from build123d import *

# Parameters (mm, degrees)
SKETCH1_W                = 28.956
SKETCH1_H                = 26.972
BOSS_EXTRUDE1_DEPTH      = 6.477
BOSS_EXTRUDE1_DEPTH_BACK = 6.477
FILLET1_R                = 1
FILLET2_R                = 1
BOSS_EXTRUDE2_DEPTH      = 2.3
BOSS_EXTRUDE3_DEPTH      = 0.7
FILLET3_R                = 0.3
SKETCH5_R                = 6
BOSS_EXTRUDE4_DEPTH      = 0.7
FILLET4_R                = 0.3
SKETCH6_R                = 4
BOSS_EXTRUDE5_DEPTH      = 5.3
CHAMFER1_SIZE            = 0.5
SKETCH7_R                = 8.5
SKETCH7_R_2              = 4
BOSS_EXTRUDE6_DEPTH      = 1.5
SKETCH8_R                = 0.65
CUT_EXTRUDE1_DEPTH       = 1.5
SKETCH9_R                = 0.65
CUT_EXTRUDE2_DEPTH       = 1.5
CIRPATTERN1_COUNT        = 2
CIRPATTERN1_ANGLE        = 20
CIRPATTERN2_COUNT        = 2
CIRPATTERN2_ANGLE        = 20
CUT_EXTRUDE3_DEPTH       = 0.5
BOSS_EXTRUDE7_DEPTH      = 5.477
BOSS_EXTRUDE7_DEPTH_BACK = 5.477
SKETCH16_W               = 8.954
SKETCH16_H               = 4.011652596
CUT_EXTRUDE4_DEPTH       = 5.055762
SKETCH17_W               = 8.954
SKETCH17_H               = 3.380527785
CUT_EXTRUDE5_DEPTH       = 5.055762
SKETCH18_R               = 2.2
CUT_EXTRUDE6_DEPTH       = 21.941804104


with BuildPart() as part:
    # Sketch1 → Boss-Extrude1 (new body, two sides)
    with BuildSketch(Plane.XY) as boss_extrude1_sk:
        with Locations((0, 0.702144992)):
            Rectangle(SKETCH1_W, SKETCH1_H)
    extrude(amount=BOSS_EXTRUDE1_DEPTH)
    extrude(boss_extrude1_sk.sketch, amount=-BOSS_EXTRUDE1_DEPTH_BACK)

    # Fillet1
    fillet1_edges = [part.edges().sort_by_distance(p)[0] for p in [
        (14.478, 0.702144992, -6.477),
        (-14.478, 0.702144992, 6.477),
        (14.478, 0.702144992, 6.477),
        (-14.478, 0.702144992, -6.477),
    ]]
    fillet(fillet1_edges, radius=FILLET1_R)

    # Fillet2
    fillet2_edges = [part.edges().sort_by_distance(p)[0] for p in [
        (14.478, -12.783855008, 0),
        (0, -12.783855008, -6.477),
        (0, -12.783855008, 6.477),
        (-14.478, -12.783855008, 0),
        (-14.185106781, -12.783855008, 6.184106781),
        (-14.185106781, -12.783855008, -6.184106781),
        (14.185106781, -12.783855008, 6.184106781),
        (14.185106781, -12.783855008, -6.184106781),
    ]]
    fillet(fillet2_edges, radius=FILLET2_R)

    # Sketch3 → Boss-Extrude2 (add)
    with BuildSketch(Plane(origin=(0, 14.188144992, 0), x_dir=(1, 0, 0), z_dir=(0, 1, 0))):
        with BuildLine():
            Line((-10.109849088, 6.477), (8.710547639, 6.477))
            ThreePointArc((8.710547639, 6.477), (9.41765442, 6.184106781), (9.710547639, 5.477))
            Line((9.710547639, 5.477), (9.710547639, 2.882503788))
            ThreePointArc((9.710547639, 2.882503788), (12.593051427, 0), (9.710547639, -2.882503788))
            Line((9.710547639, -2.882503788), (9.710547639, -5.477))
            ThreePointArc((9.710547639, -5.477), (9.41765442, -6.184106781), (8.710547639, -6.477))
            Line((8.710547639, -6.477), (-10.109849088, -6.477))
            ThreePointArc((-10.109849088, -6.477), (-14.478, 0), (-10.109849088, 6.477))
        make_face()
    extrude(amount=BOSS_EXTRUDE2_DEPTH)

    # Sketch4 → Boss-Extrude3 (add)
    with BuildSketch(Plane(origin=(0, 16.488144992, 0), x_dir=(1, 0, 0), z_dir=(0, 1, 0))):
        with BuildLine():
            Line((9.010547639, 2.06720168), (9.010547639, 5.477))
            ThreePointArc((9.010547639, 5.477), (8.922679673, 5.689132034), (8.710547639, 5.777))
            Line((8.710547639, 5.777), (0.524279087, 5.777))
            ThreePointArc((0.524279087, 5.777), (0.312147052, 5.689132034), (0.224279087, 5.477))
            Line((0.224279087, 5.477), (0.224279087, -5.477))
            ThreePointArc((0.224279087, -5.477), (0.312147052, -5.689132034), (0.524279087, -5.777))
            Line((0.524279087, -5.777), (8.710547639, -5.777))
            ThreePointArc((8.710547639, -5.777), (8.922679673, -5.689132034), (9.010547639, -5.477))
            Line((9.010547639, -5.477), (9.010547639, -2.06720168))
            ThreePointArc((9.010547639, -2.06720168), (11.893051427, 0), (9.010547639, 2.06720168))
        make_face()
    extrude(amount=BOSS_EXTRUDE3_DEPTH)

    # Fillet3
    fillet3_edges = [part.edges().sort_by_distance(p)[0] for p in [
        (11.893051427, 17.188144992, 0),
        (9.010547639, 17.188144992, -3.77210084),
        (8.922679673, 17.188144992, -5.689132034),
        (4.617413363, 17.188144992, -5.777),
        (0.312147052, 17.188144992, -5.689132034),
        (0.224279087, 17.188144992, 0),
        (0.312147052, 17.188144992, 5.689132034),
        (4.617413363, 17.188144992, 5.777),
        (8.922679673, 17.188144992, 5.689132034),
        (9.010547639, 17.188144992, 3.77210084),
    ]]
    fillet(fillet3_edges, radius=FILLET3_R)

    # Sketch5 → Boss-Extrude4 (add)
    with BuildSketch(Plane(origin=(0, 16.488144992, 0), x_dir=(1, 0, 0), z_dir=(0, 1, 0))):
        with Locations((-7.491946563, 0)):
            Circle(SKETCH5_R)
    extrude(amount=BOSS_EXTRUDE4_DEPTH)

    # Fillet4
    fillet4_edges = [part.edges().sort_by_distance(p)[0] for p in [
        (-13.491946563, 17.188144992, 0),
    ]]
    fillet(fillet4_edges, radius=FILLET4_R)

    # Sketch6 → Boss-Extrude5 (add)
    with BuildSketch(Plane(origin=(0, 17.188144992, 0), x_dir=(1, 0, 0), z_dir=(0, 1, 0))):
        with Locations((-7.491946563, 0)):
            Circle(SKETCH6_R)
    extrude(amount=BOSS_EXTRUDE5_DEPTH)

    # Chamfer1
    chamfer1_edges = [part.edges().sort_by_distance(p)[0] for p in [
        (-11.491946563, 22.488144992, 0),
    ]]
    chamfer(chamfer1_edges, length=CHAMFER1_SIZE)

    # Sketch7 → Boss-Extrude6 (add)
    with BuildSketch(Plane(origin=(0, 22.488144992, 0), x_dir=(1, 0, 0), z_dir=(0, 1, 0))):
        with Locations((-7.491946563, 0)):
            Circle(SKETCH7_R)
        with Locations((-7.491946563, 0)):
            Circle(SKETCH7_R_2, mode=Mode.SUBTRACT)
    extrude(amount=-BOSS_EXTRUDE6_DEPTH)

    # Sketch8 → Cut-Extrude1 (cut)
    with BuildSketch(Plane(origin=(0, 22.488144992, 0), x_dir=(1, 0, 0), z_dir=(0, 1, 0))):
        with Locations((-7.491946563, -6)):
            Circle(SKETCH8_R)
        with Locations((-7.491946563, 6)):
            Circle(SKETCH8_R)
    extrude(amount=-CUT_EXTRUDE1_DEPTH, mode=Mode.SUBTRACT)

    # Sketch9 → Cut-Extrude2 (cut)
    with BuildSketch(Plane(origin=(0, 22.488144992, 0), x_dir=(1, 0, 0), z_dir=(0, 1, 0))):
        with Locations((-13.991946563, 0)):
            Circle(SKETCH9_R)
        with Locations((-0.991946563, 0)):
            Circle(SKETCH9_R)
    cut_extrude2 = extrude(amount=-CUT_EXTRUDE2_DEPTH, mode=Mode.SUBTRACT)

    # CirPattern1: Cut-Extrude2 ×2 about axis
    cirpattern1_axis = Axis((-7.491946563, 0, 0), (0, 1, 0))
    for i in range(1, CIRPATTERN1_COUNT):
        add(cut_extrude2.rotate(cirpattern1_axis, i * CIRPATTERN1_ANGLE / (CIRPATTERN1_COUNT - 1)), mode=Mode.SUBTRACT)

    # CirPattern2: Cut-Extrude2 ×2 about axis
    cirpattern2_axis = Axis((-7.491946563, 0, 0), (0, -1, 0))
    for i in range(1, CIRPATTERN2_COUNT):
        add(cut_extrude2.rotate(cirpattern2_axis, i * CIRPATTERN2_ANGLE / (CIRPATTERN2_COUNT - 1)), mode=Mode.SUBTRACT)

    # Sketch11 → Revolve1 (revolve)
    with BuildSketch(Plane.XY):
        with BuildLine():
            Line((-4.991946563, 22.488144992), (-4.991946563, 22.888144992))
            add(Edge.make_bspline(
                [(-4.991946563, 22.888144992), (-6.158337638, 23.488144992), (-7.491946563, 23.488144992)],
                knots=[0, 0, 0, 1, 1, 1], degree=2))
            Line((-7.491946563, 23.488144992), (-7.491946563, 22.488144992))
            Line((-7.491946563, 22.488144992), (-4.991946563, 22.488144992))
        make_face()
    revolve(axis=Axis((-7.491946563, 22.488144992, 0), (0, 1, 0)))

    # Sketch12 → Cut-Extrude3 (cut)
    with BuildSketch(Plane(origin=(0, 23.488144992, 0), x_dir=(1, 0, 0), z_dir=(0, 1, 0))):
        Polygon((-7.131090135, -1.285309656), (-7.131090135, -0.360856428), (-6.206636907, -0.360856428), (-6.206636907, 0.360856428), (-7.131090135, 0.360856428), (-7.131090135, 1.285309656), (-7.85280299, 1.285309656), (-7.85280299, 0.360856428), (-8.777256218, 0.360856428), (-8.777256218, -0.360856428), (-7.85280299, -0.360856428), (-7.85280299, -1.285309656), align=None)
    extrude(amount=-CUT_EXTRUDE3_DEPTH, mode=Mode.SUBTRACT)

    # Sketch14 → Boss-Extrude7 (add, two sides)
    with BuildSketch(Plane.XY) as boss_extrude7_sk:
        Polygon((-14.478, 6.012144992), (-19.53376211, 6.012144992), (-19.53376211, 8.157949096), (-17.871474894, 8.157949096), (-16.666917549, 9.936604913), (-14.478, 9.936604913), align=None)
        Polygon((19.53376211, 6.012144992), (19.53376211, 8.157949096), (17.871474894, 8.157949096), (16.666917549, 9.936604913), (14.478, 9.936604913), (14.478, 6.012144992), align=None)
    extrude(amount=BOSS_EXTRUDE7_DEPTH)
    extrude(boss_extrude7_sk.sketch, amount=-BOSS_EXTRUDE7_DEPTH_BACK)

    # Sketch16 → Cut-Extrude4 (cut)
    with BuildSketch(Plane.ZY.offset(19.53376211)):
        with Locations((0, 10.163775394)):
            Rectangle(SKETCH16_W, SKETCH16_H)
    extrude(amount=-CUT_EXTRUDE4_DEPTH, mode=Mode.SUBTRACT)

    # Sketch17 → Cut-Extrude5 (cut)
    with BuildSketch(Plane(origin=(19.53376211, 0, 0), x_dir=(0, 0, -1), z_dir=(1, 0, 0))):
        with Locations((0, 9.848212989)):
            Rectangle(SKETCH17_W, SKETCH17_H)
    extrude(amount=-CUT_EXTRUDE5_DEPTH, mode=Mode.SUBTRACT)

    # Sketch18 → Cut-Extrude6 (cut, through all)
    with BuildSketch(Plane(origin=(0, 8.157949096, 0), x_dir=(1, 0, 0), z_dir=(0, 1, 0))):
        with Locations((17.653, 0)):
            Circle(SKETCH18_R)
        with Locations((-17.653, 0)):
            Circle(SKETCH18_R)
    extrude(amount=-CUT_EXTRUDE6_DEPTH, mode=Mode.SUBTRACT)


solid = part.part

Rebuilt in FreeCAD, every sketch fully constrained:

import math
import FreeCAD as App
import Part
import Sketcher
from FreeCAD import Vector
Q = App.Units.Quantity


def edges_at(feature, points):
    """Names of the edges that pass closest to the given points."""
    edges = feature.Shape.Edges
    near = lambda p: min(range(len(edges)), key=lambda i: edges[i].distToShape(Part.Vertex(*p))[0])
    return sorted({f"Edge{near(p) + 1}" for p in points})

doc = App.newDocument("Part")
body = doc.addObject("PartDesign::Body", "Body")

sketch1 = body.newObject("Sketcher::SketchObject", "Sketch")
sketch1.AttachmentSupport = (doc.getObject("XY_Plane"), [""])
sketch1.MapMode = "FlatFace"
sketch1.addGeometry(Part.LineSegment(Vector(-14, 14, 0), Vector(-14, -13, 0)), False)
sketch1.addGeometry(Part.LineSegment(Vector(-14, -13, 0), Vector(14, -13, 0)), False)
sketch1.addGeometry(Part.LineSegment(Vector(14, -13, 0), Vector(14, 14, 0)), False)
sketch1.addGeometry(Part.LineSegment(Vector(14, 14, 0), Vector(-14, 14, 0)), False)
sketch1.addConstraint(Sketcher.Constraint("Coincident", 0, 2, 1, 1))
sketch1.addConstraint(Sketcher.Constraint("Coincident", 1, 2, 2, 1))
sketch1.addConstraint(Sketcher.Constraint("Coincident", 2, 2, 3, 1))
sketch1.addConstraint(Sketcher.Constraint("Coincident", 3, 2, 0, 1))
sketch1.addConstraint(Sketcher.Constraint("Vertical", 0))
sketch1.addConstraint(Sketcher.Constraint("Horizontal", 1))
sketch1.addConstraint(Sketcher.Constraint("Vertical", 2))
sketch1.addConstraint(Sketcher.Constraint("Horizontal", 3))
sketch1.addConstraint(Sketcher.Constraint("DistanceX", 1, 1, 1, 2, Q("28.956 mm")))
sketch1.addConstraint(Sketcher.Constraint("DistanceY", 0, 2, 0, 1, Q("26.972 mm")))
sketch1.addConstraint(Sketcher.Constraint("DistanceX", 0, 2, -1, 1, Q("14.478 mm")))
sketch1.addConstraint(Sketcher.Constraint("DistanceY", 0, 2, -1, 1, Q("12.783855 mm")))
pad1 = body.newObject("PartDesign::Pad", "Pad")
pad1.Profile = sketch1
pad1.Type = "TwoLengths"
pad1.Length = 6.477
pad1.Length2 = 6.477
doc.recompute()

fillet = body.newObject("PartDesign::Fillet", "Fillet")
fillet.Base = (pad1, edges_at(pad1, [
    (14.478, 0.702, -6.477),
    (-14.478, 0.702, 6.477),
    (14.478, 0.702, 6.477),
    (-14.478, 0.702, -6.477),
]))
fillet.Radius = 1
doc.recompute()

fillet2 = body.newObject("PartDesign::Fillet", "Fillet001")
fillet2.Base = (fillet, edges_at(fillet, [
    (14.478, -12.784, 0),
    (0, -12.784, -6.477),
    (0, -12.784, 6.477),
    (-14.478, -12.784, 0),
    (-14.185, -12.784, 6.184),
    (-14.185, -12.784, -6.184),
    (14.185, -12.784, 6.184),
    (14.185, -12.784, -6.184),
]))
fillet2.Radius = 1

sketch2 = body.newObject("Sketcher::SketchObject", "Sketch001")
sketch2.AttachmentSupport = (doc.getObject("XZ_Plane"), [""])
sketch2.MapMode = "FlatFace"
sketch2.AttachmentOffset = App.Placement(Vector(0, 0, -14.188145), App.Rotation())
sketch2.addGeometry(Part.LineSegment(Vector(8.7, -6.5, 0), Vector(-10.1, -6.5, 0)), False)
sketch2.addGeometry(Part.ArcOfCircle(Part.Circle(Vector(-7.5, 0, 0), Vector(0, 0, 1), 7), math.radians(112), math.radians(248)), False)
sketch2.addGeometry(Part.LineSegment(Vector(-10.1, 6.5, 0), Vector(8.7, 6.5, 0)), False)
sketch2.addGeometry(Part.ArcOfCircle(Part.Circle(Vector(8.7, 5.5, 0), Vector(0, 0, 1), 1), math.radians(0), math.radians(90)), False)
sketch2.addGeometry(Part.LineSegment(Vector(9.7, 5.5, 0), Vector(9.7, 2.9, 0)), False)
sketch2.addGeometry(Part.ArcOfCircle(Part.Circle(Vector(9.7, 0, 0), Vector(0, 0, 1), 2.9), math.radians(-90), math.radians(90)), False)
sketch2.addGeometry(Part.LineSegment(Vector(9.7, -2.9, 0), Vector(9.7, -5.5, 0)), False)
sketch2.addGeometry(Part.ArcOfCircle(Part.Circle(Vector(8.7, -5.5, 0), Vector(0, 0, 1), 1), math.radians(-90), math.radians(0)), False)
sketch2.addConstraint(Sketcher.Constraint("Coincident", 0, 2, 1, 2))
sketch2.addConstraint(Sketcher.Constraint("Coincident", 1, 1, 2, 1))
sketch2.addConstraint(Sketcher.Constraint("Tangent", 2, 2, 3, 2))
sketch2.addConstraint(Sketcher.Constraint("Tangent", 3, 1, 4, 1))
sketch2.addConstraint(Sketcher.Constraint("Coincident", 4, 2, 5, 2))
sketch2.addConstraint(Sketcher.Constraint("Coincident", 5, 1, 6, 1))
sketch2.addConstraint(Sketcher.Constraint("Tangent", 6, 2, 7, 2))
sketch2.addConstraint(Sketcher.Constraint("Tangent", 7, 1, 0, 1))
sketch2.addConstraint(Sketcher.Constraint("Horizontal", 0))
sketch2.addConstraint(Sketcher.Constraint("Horizontal", 2))
sketch2.addConstraint(Sketcher.Constraint("Vertical", 4))
sketch2.addConstraint(Sketcher.Constraint("Vertical", 6))
sketch2.addConstraint(Sketcher.Constraint("Equal", 3, 7))
sketch2.addConstraint(Sketcher.Constraint("Symmetric", 3, 3, 7, 3, -1))
sketch2.addConstraint(Sketcher.Constraint("PointOnObject", 1, 3, -1))
sketch2.addConstraint(Sketcher.Constraint("PointOnObject", 5, 3, -1))
sketch2.addConstraint(Sketcher.Constraint("Vertical", 5, 3, 3, 1))
sketch2.addConstraint(Sketcher.Constraint("Radius", 3, Q("1 mm")))
sketch2.addConstraint(Sketcher.Constraint("DistanceY", -1, 1, 3, 3, Q("5.477 mm")))
sketch2.addConstraint(Sketcher.Constraint("Radius", 1, Q("6.986053 mm")))
sketch2.addConstraint(Sketcher.Constraint("Radius", 5, Q("2.882504 mm")))
sketch2.addConstraint(Sketcher.Constraint("DistanceX", 0, 2, 0, 1, Q("18.820397 mm")))
sketch2.addConstraint(Sketcher.Constraint("DistanceX", 0, 2, -1, 1, Q("10.109849 mm")))
pad2 = body.newObject("PartDesign::Pad", "Pad001")
pad2.Profile = sketch2
pad2.Length = 2.3
pad2.Reversed = True

sketch3 = body.newObject("Sketcher::SketchObject", "Sketch002")
sketch3.AttachmentSupport = (doc.getObject("XZ_Plane"), [""])
sketch3.MapMode = "FlatFace"
sketch3.AttachmentOffset = App.Placement(Vector(0, 0, -16.488145), App.Rotation())
sketch3.addGeometry(Part.LineSegment(Vector(9.01, -2.07, 0), Vector(9.01, -5.48, 0)), False)
sketch3.addGeometry(Part.ArcOfCircle(Part.Circle(Vector(8.71, -5.48, 0), Vector(0, 0, 1), 0.3), math.radians(-90), math.radians(0)), False)
sketch3.addGeometry(Part.LineSegment(Vector(8.71, -5.78, 0), Vector(0.52, -5.78, 0)), False)
sketch3.addGeometry(Part.ArcOfCircle(Part.Circle(Vector(0.52, -5.48, 0), Vector(0, 0, 1), 0.3), math.radians(180), math.radians(270)), False)
sketch3.addGeometry(Part.LineSegment(Vector(0.22, -5.48, 0), Vector(0.22, 5.48, 0)), False)
sketch3.addGeometry(Part.ArcOfCircle(Part.Circle(Vector(0.52, 5.48, 0), Vector(0, 0, 1), 0.3), math.radians(90), math.radians(180)), False)
sketch3.addGeometry(Part.LineSegment(Vector(0.52, 5.78, 0), Vector(8.71, 5.78, 0)), False)
sketch3.addGeometry(Part.ArcOfCircle(Part.Circle(Vector(8.71, 5.48, 0), Vector(0, 0, 1), 0.3), math.radians(0), math.radians(90)), False)
sketch3.addGeometry(Part.LineSegment(Vector(9.01, 5.48, 0), Vector(9.01, 2.07, 0)), False)
sketch3.addGeometry(Part.ArcOfCircle(Part.Circle(Vector(9.71, 0, 0), Vector(0, 0, 1), 2.18), math.radians(-109), math.radians(109)), False)
sketch3.addConstraint(Sketcher.Constraint("Tangent", 0, 2, 1, 2))
sketch3.addConstraint(Sketcher.Constraint("Tangent", 1, 1, 2, 1))
sketch3.addConstraint(Sketcher.Constraint("Tangent", 2, 2, 3, 2))
sketch3.addConstraint(Sketcher.Constraint("Tangent", 3, 1, 4, 1))
sketch3.addConstraint(Sketcher.Constraint("Tangent", 4, 2, 5, 2))
sketch3.addConstraint(Sketcher.Constraint("Tangent", 5, 1, 6, 1))
sketch3.addConstraint(Sketcher.Constraint("Tangent", 6, 2, 7, 2))
sketch3.addConstraint(Sketcher.Constraint("Tangent", 7, 1, 8, 1))
sketch3.addConstraint(Sketcher.Constraint("Coincident", 8, 2, 9, 2))
sketch3.addConstraint(Sketcher.Constraint("Coincident", 9, 1, 0, 1))
sketch3.addConstraint(Sketcher.Constraint("Vertical", 0))
sketch3.addConstraint(Sketcher.Constraint("Horizontal", 2))
sketch3.addConstraint(Sketcher.Constraint("Vertical", 4))
sketch3.addConstraint(Sketcher.Constraint("Horizontal", 6))
sketch3.addConstraint(Sketcher.Constraint("Vertical", 8))
sketch3.addConstraint(Sketcher.Constraint("Equal", 1, 3))
sketch3.addConstraint(Sketcher.Constraint("Equal", 3, 5))
sketch3.addConstraint(Sketcher.Constraint("Equal", 5, 7))
sketch3.addConstraint(Sketcher.Constraint("Symmetric", 1, 3, 7, 3, -1))
sketch3.addConstraint(Sketcher.Constraint("PointOnObject", 9, 3, -1))
sketch3.addConstraint(Sketcher.Constraint("Radius", 1, Q("0.3 mm")))
sketch3.addConstraint(Sketcher.Constraint("DistanceX", 1, 3, 9, 3, Q("1 mm")))
sketch3.addConstraint(Sketcher.Constraint("DistanceY", 4, 1, 4, 2, Q("10.954 mm")))
sketch3.addConstraint(Sketcher.Constraint("DistanceY", 0, 2, 0, 1, Q("3.409798 mm")))
sketch3.addConstraint(Sketcher.Constraint("DistanceX", 2, 2, 2, 1, Q("8.186269 mm")))
sketch3.addConstraint(Sketcher.Constraint("DistanceX", -1, 1, 3, 3, Q("0.524279 mm")))
pad3 = body.newObject("PartDesign::Pad", "Pad002")
pad3.Profile = sketch3
pad3.Length = 0.7
pad3.Reversed = True
doc.recompute()

fillet3 = body.newObject("PartDesign::Fillet", "Fillet002")
fillet3.Base = (pad3, edges_at(pad3, [
    (11.893, 17.188, 0),
    (9.011, 17.188, -3.772),
    (8.923, 17.188, -5.689),
    (4.617, 17.188, -5.777),
    (0.312, 17.188, -5.689),
    (0.224, 17.188, 0),
    (0.312, 17.188, 5.689),
    (4.617, 17.188, 5.777),
    (8.923, 17.188, 5.689),
    (9.011, 17.188, 3.772),
]))
fillet3.Radius = 0.3

sketch4 = body.newObject("Sketcher::SketchObject", "Sketch003")
sketch4.AttachmentSupport = (doc.getObject("XZ_Plane"), [""])
sketch4.MapMode = "FlatFace"
sketch4.AttachmentOffset = App.Placement(Vector(0, 0, -16.488145), App.Rotation())
sketch4.addGeometry(Part.Circle(Vector(-7, 0, 0), Vector(0, 0, 1), 6), False)
sketch4.addConstraint(Sketcher.Constraint("PointOnObject", 0, 3, -1))
sketch4.addConstraint(Sketcher.Constraint("Diameter", 0, Q("12 mm")))
sketch4.addConstraint(Sketcher.Constraint("DistanceX", 0, 3, -1, 1, Q("7.491947 mm")))
pad4 = body.newObject("PartDesign::Pad", "Pad003")
pad4.Profile = sketch4
pad4.Length = 0.7
pad4.Reversed = True
doc.recompute()

fillet4 = body.newObject("PartDesign::Fillet", "Fillet003")
fillet4.Base = (pad4, edges_at(pad4, [(-13.492, 17.188, 0)]))
fillet4.Radius = 0.3

sketch5 = body.newObject("Sketcher::SketchObject", "Sketch004")
sketch5.AttachmentSupport = (doc.getObject("XZ_Plane"), [""])
sketch5.MapMode = "FlatFace"
sketch5.AttachmentOffset = App.Placement(Vector(0, 0, -17.188145), App.Rotation())
sketch5.addGeometry(Part.Circle(Vector(-7.5, 0, 0), Vector(0, 0, 1), 4), False)
sketch5.addConstraint(Sketcher.Constraint("PointOnObject", 0, 3, -1))
sketch5.addConstraint(Sketcher.Constraint("Diameter", 0, Q("8 mm")))
sketch5.addConstraint(Sketcher.Constraint("DistanceX", 0, 3, -1, 1, Q("7.491947 mm")))
pad5 = body.newObject("PartDesign::Pad", "Pad004")
pad5.Profile = sketch5
pad5.Length = 5.3
pad5.Reversed = True
doc.recompute()

chamfer = body.newObject("PartDesign::Chamfer", "Chamfer")
chamfer.Base = (pad5, edges_at(pad5, [(-11.492, 22.488, 0)]))
chamfer.Size = 0.5

sketch6 = body.newObject("Sketcher::SketchObject", "Sketch005")
sketch6.AttachmentSupport = (doc.getObject("XZ_Plane"), [""])
sketch6.MapMode = "FlatFace"
sketch6.AttachmentOffset = App.Placement(Vector(0, 0, -22.488145), App.Rotation())
sketch6.addGeometry(Part.Circle(Vector(-7.5, 0, 0), Vector(0, 0, 1), 8.5), False)
sketch6.addGeometry(Part.Circle(Vector(-7.5, 0, 0), Vector(0, 0, 1), 4), False)
sketch6.addConstraint(Sketcher.Constraint("Coincident", 1, 3, 0, 3))
sketch6.addConstraint(Sketcher.Constraint("PointOnObject", 0, 3, -1))
sketch6.addConstraint(Sketcher.Constraint("Diameter", 0, Q("17 mm")))
sketch6.addConstraint(Sketcher.Constraint("Diameter", 1, Q("8 mm")))
sketch6.addConstraint(Sketcher.Constraint("DistanceX", 0, 3, -1, 1, Q("7.491947 mm")))
pad6 = body.newObject("PartDesign::Pad", "Pad005")
pad6.Profile = sketch6
pad6.Length = 1.5

sketch7 = body.newObject("Sketcher::SketchObject", "Sketch006")
sketch7.AttachmentSupport = (doc.getObject("XZ_Plane"), [""])
sketch7.MapMode = "FlatFace"
sketch7.AttachmentOffset = App.Placement(Vector(0, 0, -22.488145), App.Rotation())
sketch7.addGeometry(Part.Circle(Vector(-7.5, 6, 0), Vector(0, 0, 1), 0.7), False)
sketch7.addGeometry(Part.Circle(Vector(-7.5, -6, 0), Vector(0, 0, 1), 0.7), False)
sketch7.addConstraint(Sketcher.Constraint("Equal", 0, 1))
sketch7.addConstraint(Sketcher.Constraint("Symmetric", 0, 3, 1, 3, -1))
sketch7.addConstraint(Sketcher.Constraint("Diameter", 0, Q("1.3 mm")))
sketch7.addConstraint(Sketcher.Constraint("DistanceY", -1, 1, 0, 3, Q("6 mm")))
sketch7.addConstraint(Sketcher.Constraint("DistanceX", 0, 3, -1, 1, Q("7.491947 mm")))
pocket1 = body.newObject("PartDesign::Pocket", "Pocket")
pocket1.Profile = sketch7
pocket1.Length = 1.5
pocket1.Reversed = True

sketch8 = body.newObject("Sketcher::SketchObject", "Sketch007")
sketch8.AttachmentSupport = (doc.getObject("XZ_Plane"), [""])
sketch8.MapMode = "FlatFace"
sketch8.AttachmentOffset = App.Placement(Vector(0, 0, -22.488145), App.Rotation())
sketch8.addGeometry(Part.Circle(Vector(-14, 0, 0), Vector(0, 0, 1), 0.7), False)
sketch8.addGeometry(Part.Circle(Vector(-1, 0, 0), Vector(0, 0, 1), 0.7), False)
sketch8.addConstraint(Sketcher.Constraint("Equal", 0, 1))
sketch8.addConstraint(Sketcher.Constraint("PointOnObject", 0, 3, -1))
sketch8.addConstraint(Sketcher.Constraint("PointOnObject", 1, 3, -1))
sketch8.addConstraint(Sketcher.Constraint("Diameter", 0, Q("1.3 mm")))
sketch8.addConstraint(Sketcher.Constraint("DistanceX", 0, 3, 1, 3, Q("13 mm")))
sketch8.addConstraint(Sketcher.Constraint("DistanceX", 0, 3, -1, 1, Q("13.991947 mm")))
pocket2 = body.newObject("PartDesign::Pocket", "Pocket001")
pocket2.Profile = sketch8
pocket2.Length = 1.5
pocket2.Reversed = True
doc.recompute()

datumline = body.newObject("PartDesign::Line", "DatumLine")
datumline.Placement = App.Placement(Vector(-7.491947, 0, 0), App.Rotation(Vector(0, 0, 1), Vector(0, 1, 0)))
polarpattern = body.newObject("PartDesign::PolarPattern", "PolarPattern")
polarpattern.Originals = [pocket2]
polarpattern.Axis = (datumline, [""])
polarpattern.Angle = 20
polarpattern.Occurrences = 2
body.Tip = polarpattern
doc.recompute()

datumline2 = body.newObject("PartDesign::Line", "DatumLine001")
datumline2.Placement = App.Placement(Vector(-7.491947, 0, 0), App.Rotation(Vector(0, 0, 1), Vector(0, -1, 0)))
polarpattern2 = body.newObject("PartDesign::PolarPattern", "PolarPattern001")
polarpattern2.Originals = [pocket2]
polarpattern2.Axis = (datumline2, [""])
polarpattern2.Angle = 20
polarpattern2.Occurrences = 2
body.Tip = polarpattern2

sketch9 = body.newObject("Sketcher::SketchObject", "Sketch008")
sketch9.AttachmentSupport = (doc.getObject("XY_Plane"), [""])
sketch9.MapMode = "FlatFace"
sketch9.addGeometry(Part.LineSegment(Vector(-4.991947, 22.488145, 0), Vector(-4.991947, 22.888145, 0)), False)
sketch9.addGeometry(Part.BSplineCurve([Vector(-4.991947, 22.888145, 0), Vector(-6.158338, 23.488145, 0), Vector(-7.491947, 23.488145, 0)], [3, 3], [0, 1], False, 2, [1, 1, 1], False), False)
sketch9.addGeometry(Part.LineSegment(Vector(-7.491947, 23.488145, 0), Vector(-7.491947, 22.488145, 0)), False)
sketch9.addGeometry(Part.LineSegment(Vector(-7.491947, 22.488145, 0), Vector(-4.991947, 22.488145, 0)), False)
sketch9.addGeometry(Part.LineSegment(Vector(-7.491947, 22.488145, 0), Vector(-7.491947, 23.488145, 0)), True)
sketch9.addConstraint(Sketcher.Constraint("Block", 1))
sketch9.addConstraint(Sketcher.Constraint("Coincident", 0, 2, 1, 1))
sketch9.addConstraint(Sketcher.Constraint("Coincident", 1, 2, 2, 1))
sketch9.addConstraint(Sketcher.Constraint("Coincident", 2, 2, 3, 1))
sketch9.addConstraint(Sketcher.Constraint("Coincident", 3, 2, 0, 1))
sketch9.addConstraint(Sketcher.Constraint("Vertical", 0))
sketch9.addConstraint(Sketcher.Constraint("Vertical", 2))
sketch9.addConstraint(Sketcher.Constraint("Horizontal", 3))
sketch9.addConstraint(Sketcher.Constraint("Vertical", 4))
sketch9.addConstraint(Sketcher.Constraint("Coincident", 4, 1, 2, 2))
sketch9.addConstraint(Sketcher.Constraint("Equal", 2, 4))
sketch9.addConstraint(Sketcher.Constraint("DistanceY", 2, 2, 2, 1, Q("1 mm")))
revolution = body.newObject("PartDesign::Revolution", "Revolution")
revolution.Profile = sketch9
revolution.ReferenceAxis = (sketch9, ["Axis0"])
revolution.Angle = 360

sketch10 = body.newObject("Sketcher::SketchObject", "Sketch009")
sketch10.AttachmentSupport = (doc.getObject("XZ_Plane"), [""])
sketch10.MapMode = "FlatFace"
sketch10.AttachmentOffset = App.Placement(Vector(0, 0, -23.488145), App.Rotation())
sketch10.addGeometry(Part.LineSegment(Vector(-7.1, 1.3, 0), Vector(-7.1, 0.4, 0)), False)
sketch10.addGeometry(Part.LineSegment(Vector(-7.1, 0.4, 0), Vector(-6.2, 0.4, 0)), False)
sketch10.addGeometry(Part.LineSegment(Vector(-6.2, 0.4, 0), Vector(-6.2, -0.4, 0)), False)
sketch10.addGeometry(Part.LineSegment(Vector(-6.2, -0.4, 0), Vector(-7.1, -0.4, 0)), False)
sketch10.addGeometry(Part.LineSegment(Vector(-7.1, -0.4, 0), Vector(-7.1, -1.3, 0)), False)
sketch10.addGeometry(Part.LineSegment(Vector(-7.1, -1.3, 0), Vector(-7.9, -1.3, 0)), False)
sketch10.addGeometry(Part.LineSegment(Vector(-7.9, -1.3, 0), Vector(-7.9, -0.4, 0)), False)
sketch10.addGeometry(Part.LineSegment(Vector(-7.9, -0.4, 0), Vector(-8.8, -0.4, 0)), False)
sketch10.addGeometry(Part.LineSegment(Vector(-8.8, -0.4, 0), Vector(-8.8, 0.4, 0)), False)
sketch10.addGeometry(Part.LineSegment(Vector(-8.8, 0.4, 0), Vector(-7.9, 0.4, 0)), False)
sketch10.addGeometry(Part.LineSegment(Vector(-7.9, 0.4, 0), Vector(-7.9, 1.3, 0)), False)
sketch10.addGeometry(Part.LineSegment(Vector(-7.9, 1.3, 0), Vector(-7.1, 1.3, 0)), False)
sketch10.addConstraint(Sketcher.Constraint("Coincident", 0, 2, 1, 1))
sketch10.addConstraint(Sketcher.Constraint("Coincident", 1, 2, 2, 1))
sketch10.addConstraint(Sketcher.Constraint("Coincident", 2, 2, 3, 1))
sketch10.addConstraint(Sketcher.Constraint("Coincident", 3, 2, 4, 1))
sketch10.addConstraint(Sketcher.Constraint("Coincident", 4, 2, 5, 1))
sketch10.addConstraint(Sketcher.Constraint("Coincident", 5, 2, 6, 1))
sketch10.addConstraint(Sketcher.Constraint("Coincident", 6, 2, 7, 1))
sketch10.addConstraint(Sketcher.Constraint("Coincident", 7, 2, 8, 1))
sketch10.addConstraint(Sketcher.Constraint("Coincident", 8, 2, 9, 1))
sketch10.addConstraint(Sketcher.Constraint("Coincident", 9, 2, 10, 1))
sketch10.addConstraint(Sketcher.Constraint("Coincident", 10, 2, 11, 1))
sketch10.addConstraint(Sketcher.Constraint("Coincident", 11, 2, 0, 1))
sketch10.addConstraint(Sketcher.Constraint("Vertical", 0))
sketch10.addConstraint(Sketcher.Constraint("Horizontal", 1))
sketch10.addConstraint(Sketcher.Constraint("Vertical", 2))
sketch10.addConstraint(Sketcher.Constraint("Horizontal", 3))
sketch10.addConstraint(Sketcher.Constraint("Vertical", 4))
sketch10.addConstraint(Sketcher.Constraint("Horizontal", 5))
sketch10.addConstraint(Sketcher.Constraint("Vertical", 6))
sketch10.addConstraint(Sketcher.Constraint("Horizontal", 7))
sketch10.addConstraint(Sketcher.Constraint("Vertical", 8))
sketch10.addConstraint(Sketcher.Constraint("Horizontal", 9))
sketch10.addConstraint(Sketcher.Constraint("Vertical", 10))
sketch10.addConstraint(Sketcher.Constraint("Horizontal", 11))
sketch10.addConstraint(Sketcher.Constraint("Symmetric", 0, 2, 3, 2, -1))
sketch10.addConstraint(Sketcher.Constraint("Symmetric", 6, 2, 9, 2, -1))
sketch10.addConstraint(Sketcher.Constraint("Horizontal", 3, 2, 6, 2))
sketch10.addConstraint(Sketcher.Constraint("Equal", 3, 7))
sketch10.addConstraint(Sketcher.Constraint("Equal", 9, 0))
sketch10.addConstraint(Sketcher.Constraint("Equal", 11, 2))
sketch10.addConstraint(Sketcher.Constraint("Equal", 0, 4))
sketch10.addConstraint(Sketcher.Constraint("DistanceX", 1, 1, 1, 2, Q("0.924453 mm")))
sketch10.addConstraint(Sketcher.Constraint("DistanceX", 5, 2, 5, 1, Q("0.721713 mm")))
sketch10.addConstraint(Sketcher.Constraint("DistanceX", 0, 2, -1, 1, Q("7.13109 mm")))
pocket3 = body.newObject("PartDesign::Pocket", "Pocket002")
pocket3.Profile = sketch10
pocket3.Length = 0.5
pocket3.Reversed = True

sketch11 = body.newObject("Sketcher::SketchObject", "Sketch010")
sketch11.AttachmentSupport = (doc.getObject("XY_Plane"), [""])
sketch11.MapMode = "FlatFace"
sketch11.addGeometry(Part.LineSegment(Vector(-19.5, 6, 0), Vector(-14.5, 6, 0)), False)
sketch11.addGeometry(Part.LineSegment(Vector(-14.5, 6, 0), Vector(-14.5, 9.9, 0)), False)
sketch11.addGeometry(Part.LineSegment(Vector(-14.5, 9.9, 0), Vector(-16.7, 9.9, 0)), False)
sketch11.addGeometry(Part.LineSegment(Vector(-16.7, 9.9, 0), Vector(-17.9, 8.2, 0)), False)
sketch11.addGeometry(Part.LineSegment(Vector(-17.9, 8.2, 0), Vector(-19.5, 8.2, 0)), False)
sketch11.addGeometry(Part.LineSegment(Vector(-19.5, 8.2, 0), Vector(-19.5, 6, 0)), False)
sketch11.addGeometry(Part.LineSegment(Vector(19.5, 6, 0), Vector(19.5, 8.2, 0)), False)
sketch11.addGeometry(Part.LineSegment(Vector(19.5, 8.2, 0), Vector(17.9, 8.2, 0)), False)
sketch11.addGeometry(Part.LineSegment(Vector(17.9, 8.2, 0), Vector(16.7, 9.9, 0)), False)
sketch11.addGeometry(Part.LineSegment(Vector(16.7, 9.9, 0), Vector(14.5, 9.9, 0)), False)
sketch11.addGeometry(Part.LineSegment(Vector(14.5, 9.9, 0), Vector(14.5, 6, 0)), False)
sketch11.addGeometry(Part.LineSegment(Vector(14.5, 6, 0), Vector(19.5, 6, 0)), False)
sketch11.addConstraint(Sketcher.Constraint("Coincident", 0, 2, 1, 1))
sketch11.addConstraint(Sketcher.Constraint("Coincident", 1, 2, 2, 1))
sketch11.addConstraint(Sketcher.Constraint("Coincident", 2, 2, 3, 1))
sketch11.addConstraint(Sketcher.Constraint("Coincident", 3, 2, 4, 1))
sketch11.addConstraint(Sketcher.Constraint("Coincident", 4, 2, 5, 1))
sketch11.addConstraint(Sketcher.Constraint("Coincident", 5, 2, 0, 1))
sketch11.addConstraint(Sketcher.Constraint("Coincident", 6, 2, 7, 1))
sketch11.addConstraint(Sketcher.Constraint("Coincident", 7, 2, 8, 1))
sketch11.addConstraint(Sketcher.Constraint("Coincident", 8, 2, 9, 1))
sketch11.addConstraint(Sketcher.Constraint("Coincident", 9, 2, 10, 1))
sketch11.addConstraint(Sketcher.Constraint("Coincident", 10, 2, 11, 1))
sketch11.addConstraint(Sketcher.Constraint("Coincident", 11, 2, 6, 1))
sketch11.addConstraint(Sketcher.Constraint("Horizontal", 0))
sketch11.addConstraint(Sketcher.Constraint("Vertical", 1))
sketch11.addConstraint(Sketcher.Constraint("Horizontal", 2))
sketch11.addConstraint(Sketcher.Constraint("Horizontal", 4))
sketch11.addConstraint(Sketcher.Constraint("Vertical", 5))
sketch11.addConstraint(Sketcher.Constraint("Vertical", 6))
sketch11.addConstraint(Sketcher.Constraint("Horizontal", 7))
sketch11.addConstraint(Sketcher.Constraint("Horizontal", 9))
sketch11.addConstraint(Sketcher.Constraint("Vertical", 10))
sketch11.addConstraint(Sketcher.Constraint("Horizontal", 11))
sketch11.addConstraint(Sketcher.Constraint("Symmetric", 4, 2, 6, 2, -2))
sketch11.addConstraint(Sketcher.Constraint("Symmetric", 2, 2, 8, 2, -2))
sketch11.addConstraint(Sketcher.Constraint("Symmetric", 0, 2, 10, 2, -2))
sketch11.addConstraint(Sketcher.Constraint("Equal", 4, 7))
sketch11.addConstraint(Sketcher.Constraint("DistanceX", 0, 2, -1, 1, Q("14.478 mm")))
sketch11.addConstraint(Sketcher.Constraint("DistanceY", 1, 1, 1, 2, Q("3.92446 mm")))
sketch11.addConstraint(Sketcher.Constraint("DistanceX", 0, 1, 0, 2, Q("5.055762 mm")))
sketch11.addConstraint(Sketcher.Constraint("DistanceX", 2, 2, 2, 1, Q("2.188918 mm")))
sketch11.addConstraint(Sketcher.Constraint("DistanceX", 4, 2, 4, 1, Q("1.662287 mm")))
sketch11.addConstraint(Sketcher.Constraint("DistanceY", 5, 2, 5, 1, Q("2.145804 mm")))
sketch11.addConstraint(Sketcher.Constraint("DistanceY", -1, 1, 3, 2, Q("8.157949 mm")))
pad7 = body.newObject("PartDesign::Pad", "Pad006")
pad7.Profile = sketch11
pad7.Type = "TwoLengths"
pad7.Length = 5.477
pad7.Length2 = 5.477

sketch12 = body.newObject("Sketcher::SketchObject", "Sketch011")
sketch12.AttachmentSupport = (doc.getObject("YZ_Plane"), [""])
sketch12.MapMode = "FlatFace"
sketch12.AttachmentOffset = App.Placement(Vector(0, 0, -19.533762), App.Rotation())
sketch12.addGeometry(Part.LineSegment(Vector(12.2, -4.5, 0), Vector(8.2, -4.5, 0)), False)
sketch12.addGeometry(Part.LineSegment(Vector(8.2, -4.5, 0), Vector(8.2, 4.5, 0)), False)
sketch12.addGeometry(Part.LineSegment(Vector(8.2, 4.5, 0), Vector(12.2, 4.5, 0)), False)
sketch12.addGeometry(Part.LineSegment(Vector(12.2, 4.5, 0), Vector(12.2, -4.5, 0)), False)
sketch12.addConstraint(Sketcher.Constraint("Coincident", 0, 2, 1, 1))
sketch12.addConstraint(Sketcher.Constraint("Coincident", 1, 2, 2, 1))
sketch12.addConstraint(Sketcher.Constraint("Coincident", 2, 2, 3, 1))
sketch12.addConstraint(Sketcher.Constraint("Coincident", 3, 2, 0, 1))
sketch12.addConstraint(Sketcher.Constraint("Horizontal", 0))
sketch12.addConstraint(Sketcher.Constraint("Vertical", 1))
sketch12.addConstraint(Sketcher.Constraint("Horizontal", 2))
sketch12.addConstraint(Sketcher.Constraint("Vertical", 3))
sketch12.addConstraint(Sketcher.Constraint("DistanceY", 1, 1, 1, 2, Q("8.954 mm")))
sketch12.addConstraint(Sketcher.Constraint("DistanceY", 0, 2, -1, 1, Q("4.477 mm")))
sketch12.addConstraint(Sketcher.Constraint("DistanceX", -1, 1, 2, 2, Q("12.169602 mm")))
sketch12.addConstraint(Sketcher.Constraint("DistanceX", 0, 2, 0, 1, Q("4.011653 mm")))
pocket4 = body.newObject("PartDesign::Pocket", "Pocket003")
pocket4.Profile = sketch12
pocket4.Length = 5.055762
pocket4.Reversed = True

sketch13 = body.newObject("Sketcher::SketchObject", "Sketch012")
sketch13.AttachmentSupport = (doc.getObject("YZ_Plane"), [""])
sketch13.MapMode = "FlatFace"
sketch13.AttachmentOffset = App.Placement(Vector(0, 0, 19.533762), App.Rotation())
sketch13.addGeometry(Part.LineSegment(Vector(11.5, 4.5, 0), Vector(8.2, 4.5, 0)), False)
sketch13.addGeometry(Part.LineSegment(Vector(8.2, 4.5, 0), Vector(8.2, -4.5, 0)), False)
sketch13.addGeometry(Part.LineSegment(Vector(8.2, -4.5, 0), Vector(11.5, -4.5, 0)), False)
sketch13.addGeometry(Part.LineSegment(Vector(11.5, -4.5, 0), Vector(11.5, 4.5, 0)), False)
sketch13.addConstraint(Sketcher.Constraint("Coincident", 0, 2, 1, 1))
sketch13.addConstraint(Sketcher.Constraint("Coincident", 1, 2, 2, 1))
sketch13.addConstraint(Sketcher.Constraint("Coincident", 2, 2, 3, 1))
sketch13.addConstraint(Sketcher.Constraint("Coincident", 3, 2, 0, 1))
sketch13.addConstraint(Sketcher.Constraint("Horizontal", 0))
sketch13.addConstraint(Sketcher.Constraint("Vertical", 1))
sketch13.addConstraint(Sketcher.Constraint("Horizontal", 2))
sketch13.addConstraint(Sketcher.Constraint("Vertical", 3))
sketch13.addConstraint(Sketcher.Constraint("DistanceY", 1, 2, 1, 1, Q("8.954 mm")))
sketch13.addConstraint(Sketcher.Constraint("DistanceY", -1, 1, 0, 2, Q("4.477 mm")))
sketch13.addConstraint(Sketcher.Constraint("DistanceX", 0, 2, 0, 1, Q("3.380528 mm")))
sketch13.addConstraint(Sketcher.Constraint("DistanceX", -1, 1, 0, 2, Q("8.157949 mm")))
pocket5 = body.newObject("PartDesign::Pocket", "Pocket004")
pocket5.Profile = sketch13
pocket5.Length = 5.055762

sketch14 = body.newObject("Sketcher::SketchObject", "Sketch013")
sketch14.AttachmentSupport = (doc.getObject("XZ_Plane"), [""])
sketch14.MapMode = "FlatFace"
sketch14.AttachmentOffset = App.Placement(Vector(0, 0, -8.157949), App.Rotation())
sketch14.addGeometry(Part.Circle(Vector(17.7, 0, 0), Vector(0, 0, 1), 2.2), False)
sketch14.addGeometry(Part.Circle(Vector(-17.7, 0, 0), Vector(0, 0, 1), 2.2), False)
sketch14.addConstraint(Sketcher.Constraint("Equal", 0, 1))
sketch14.addConstraint(Sketcher.Constraint("Symmetric", 0, 3, 1, 3, -1, 1))
sketch14.addConstraint(Sketcher.Constraint("PointOnObject", 0, 3, -1))
sketch14.addConstraint(Sketcher.Constraint("Diameter", 0, Q("4.4 mm")))
sketch14.addConstraint(Sketcher.Constraint("DistanceX", -1, 1, 0, 3, Q("17.653 mm")))
pocket6 = body.newObject("PartDesign::Pocket", "Pocket005")
pocket6.Profile = sketch14
pocket6.Type = "ThroughAll"
pocket6.Reversed = True

doc.recompute()
